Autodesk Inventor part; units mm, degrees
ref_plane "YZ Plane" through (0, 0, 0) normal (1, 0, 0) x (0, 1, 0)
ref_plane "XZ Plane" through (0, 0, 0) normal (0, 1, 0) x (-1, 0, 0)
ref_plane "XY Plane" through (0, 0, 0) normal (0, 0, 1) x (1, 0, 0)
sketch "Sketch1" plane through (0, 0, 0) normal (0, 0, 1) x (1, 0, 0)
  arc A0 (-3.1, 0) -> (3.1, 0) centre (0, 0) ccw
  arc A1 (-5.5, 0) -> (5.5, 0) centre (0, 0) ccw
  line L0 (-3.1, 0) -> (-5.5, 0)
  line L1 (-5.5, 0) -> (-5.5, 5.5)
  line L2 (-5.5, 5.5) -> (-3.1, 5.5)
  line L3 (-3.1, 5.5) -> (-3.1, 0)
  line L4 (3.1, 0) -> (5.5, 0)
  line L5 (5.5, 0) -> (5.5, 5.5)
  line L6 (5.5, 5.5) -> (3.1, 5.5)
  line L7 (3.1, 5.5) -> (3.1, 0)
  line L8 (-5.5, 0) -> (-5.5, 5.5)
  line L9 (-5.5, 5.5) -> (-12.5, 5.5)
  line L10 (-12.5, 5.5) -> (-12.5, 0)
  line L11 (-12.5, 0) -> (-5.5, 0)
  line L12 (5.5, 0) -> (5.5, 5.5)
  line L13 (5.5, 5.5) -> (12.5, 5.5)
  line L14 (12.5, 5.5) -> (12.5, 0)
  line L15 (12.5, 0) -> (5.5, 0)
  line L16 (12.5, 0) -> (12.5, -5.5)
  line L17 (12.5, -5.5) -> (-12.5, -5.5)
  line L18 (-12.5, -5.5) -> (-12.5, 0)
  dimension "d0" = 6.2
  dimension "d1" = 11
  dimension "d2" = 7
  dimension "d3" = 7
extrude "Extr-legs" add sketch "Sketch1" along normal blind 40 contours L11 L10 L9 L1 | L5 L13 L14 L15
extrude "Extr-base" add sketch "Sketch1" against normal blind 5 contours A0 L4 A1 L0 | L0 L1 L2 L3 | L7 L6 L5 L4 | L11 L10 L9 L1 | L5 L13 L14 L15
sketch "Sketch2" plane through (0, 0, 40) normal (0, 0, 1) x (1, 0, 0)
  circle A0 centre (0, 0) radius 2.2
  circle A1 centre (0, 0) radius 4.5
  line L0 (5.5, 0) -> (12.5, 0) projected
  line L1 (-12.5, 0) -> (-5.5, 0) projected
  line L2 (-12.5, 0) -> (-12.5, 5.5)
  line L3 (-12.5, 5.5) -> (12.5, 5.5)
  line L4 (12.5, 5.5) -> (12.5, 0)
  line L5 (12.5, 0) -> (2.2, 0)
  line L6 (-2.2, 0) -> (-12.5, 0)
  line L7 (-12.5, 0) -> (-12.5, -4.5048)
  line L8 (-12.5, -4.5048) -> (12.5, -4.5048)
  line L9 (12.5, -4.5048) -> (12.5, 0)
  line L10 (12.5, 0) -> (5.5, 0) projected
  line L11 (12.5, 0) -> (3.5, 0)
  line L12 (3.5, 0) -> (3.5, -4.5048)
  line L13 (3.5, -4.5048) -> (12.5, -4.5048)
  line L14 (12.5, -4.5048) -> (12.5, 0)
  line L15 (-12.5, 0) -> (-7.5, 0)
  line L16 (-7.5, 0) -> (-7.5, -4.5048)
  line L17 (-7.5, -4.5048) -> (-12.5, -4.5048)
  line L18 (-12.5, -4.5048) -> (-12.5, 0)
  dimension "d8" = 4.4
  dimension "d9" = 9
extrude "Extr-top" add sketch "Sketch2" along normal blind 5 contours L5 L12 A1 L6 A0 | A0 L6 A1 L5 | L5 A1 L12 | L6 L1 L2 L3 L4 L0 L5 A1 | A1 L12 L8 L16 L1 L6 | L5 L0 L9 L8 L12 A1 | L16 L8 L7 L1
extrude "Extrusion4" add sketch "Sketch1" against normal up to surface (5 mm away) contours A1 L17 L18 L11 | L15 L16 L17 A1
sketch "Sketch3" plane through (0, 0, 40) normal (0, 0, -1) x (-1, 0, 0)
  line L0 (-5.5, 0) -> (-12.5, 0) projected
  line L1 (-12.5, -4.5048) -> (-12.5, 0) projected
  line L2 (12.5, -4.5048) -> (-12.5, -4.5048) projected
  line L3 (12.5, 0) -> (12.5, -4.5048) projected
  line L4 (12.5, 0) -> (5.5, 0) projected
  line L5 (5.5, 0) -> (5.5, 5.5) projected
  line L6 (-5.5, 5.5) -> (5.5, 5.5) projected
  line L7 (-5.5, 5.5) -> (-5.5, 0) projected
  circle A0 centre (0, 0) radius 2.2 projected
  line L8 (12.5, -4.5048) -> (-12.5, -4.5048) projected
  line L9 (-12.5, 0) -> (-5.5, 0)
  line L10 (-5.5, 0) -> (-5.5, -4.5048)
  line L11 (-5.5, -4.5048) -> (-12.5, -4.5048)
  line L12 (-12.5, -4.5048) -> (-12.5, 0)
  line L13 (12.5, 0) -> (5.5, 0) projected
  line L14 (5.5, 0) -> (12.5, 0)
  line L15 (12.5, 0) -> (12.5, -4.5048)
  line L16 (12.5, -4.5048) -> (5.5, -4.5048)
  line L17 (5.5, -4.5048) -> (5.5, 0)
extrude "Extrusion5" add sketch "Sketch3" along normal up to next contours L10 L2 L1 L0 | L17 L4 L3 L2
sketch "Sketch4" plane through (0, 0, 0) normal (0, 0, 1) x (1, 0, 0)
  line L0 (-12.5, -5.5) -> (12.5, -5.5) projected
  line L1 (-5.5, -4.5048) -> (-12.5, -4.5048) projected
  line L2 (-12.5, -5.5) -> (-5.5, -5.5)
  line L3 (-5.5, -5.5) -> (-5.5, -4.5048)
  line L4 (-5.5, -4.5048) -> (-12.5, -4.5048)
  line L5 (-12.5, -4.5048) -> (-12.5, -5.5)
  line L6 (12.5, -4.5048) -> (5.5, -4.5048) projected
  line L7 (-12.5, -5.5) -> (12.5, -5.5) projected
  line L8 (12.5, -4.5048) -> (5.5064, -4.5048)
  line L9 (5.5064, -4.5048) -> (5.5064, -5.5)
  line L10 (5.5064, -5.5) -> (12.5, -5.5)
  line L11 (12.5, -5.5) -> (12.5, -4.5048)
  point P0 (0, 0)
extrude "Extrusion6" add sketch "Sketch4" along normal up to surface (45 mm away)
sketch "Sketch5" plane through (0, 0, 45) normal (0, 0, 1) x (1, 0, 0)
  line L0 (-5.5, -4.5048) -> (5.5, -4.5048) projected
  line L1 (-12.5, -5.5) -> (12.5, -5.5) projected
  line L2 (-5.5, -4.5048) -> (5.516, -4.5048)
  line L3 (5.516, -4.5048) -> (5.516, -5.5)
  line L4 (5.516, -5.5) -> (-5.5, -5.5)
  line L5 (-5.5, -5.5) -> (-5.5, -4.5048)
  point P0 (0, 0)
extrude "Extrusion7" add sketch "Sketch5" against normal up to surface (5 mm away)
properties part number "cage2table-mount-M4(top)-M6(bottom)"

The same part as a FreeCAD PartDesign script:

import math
import FreeCAD as App
import Part
import Sketcher

V = App.Vector

doc = App.newDocument("Part")
params = doc.addObject("Spreadsheet::Sheet", "Params")
for row, (alias, value) in enumerate([
    ("sketch1_width", "7 mm"),
    ("sketch1_height", "5.5 mm"),
    ("pad1_length", "40 mm"),
    ("sketch2_radius", "3.1 mm"),
    ("sketch2_radius2", "5.5 mm"),
    ("sketch2_width", "7 mm"),
    ("sketch2_height", "5.5 mm"),
    ("pad2_length", "5 mm"),
    ("sketch3_diameter", "4.4 mm"),
    ("sketch3_width", "25 mm"),
    ("pad3_length", "5 mm"),
    ("sketch4_radius", "5.5 mm"),
    ("sketch4_width", "7 mm"),
    ("pad4_length", "5 mm"),
    ("sketch5_width", "7 mm"),
    ("pad5_length", "40 mm"),
    ("sketch6_width", "7 mm"),
    ("pad6_length", "45 mm"),
    ("pad7_length", "5 mm"),
], start=1):
    params.set(f"A{row}", alias)
    params.set(f"B{row}", "=" + value)
    params.setAlias(f"B{row}", alias)

body = doc.addObject("PartDesign::Body", "Body")
body.AllowCompound = True

# Sketch on XY plane
sketch1 = body.newObject("Sketcher::SketchObject", "Sketch")
sketch1.AttachmentSupport = (doc.getObject("XY_Plane"), [""])
sketch1.MapMode = "FlatFace"
sketch1.addGeometry([
    Part.LineSegment(V(-12, 0, 0), V(-6, 0, 0)),  # 0
    Part.LineSegment(V(-6, 0, 0), V(-6, 6, 0)),  # 1
    Part.LineSegment(V(-6, 6, 0), V(-12, 6, 0)),  # 2
    Part.LineSegment(V(-12, 6, 0), V(-12, 0, 0)),  # 3
    Part.LineSegment(V(6, 6, 0), V(6, 0, 0)),  # 4
    Part.LineSegment(V(6, 0, 0), V(12, 0, 0)),  # 5
    Part.LineSegment(V(12, 0, 0), V(12, 6, 0)),  # 6
    Part.LineSegment(V(12, 6, 0), V(6, 6, 0)),  # 7
], False)
sketch1.addConstraint([
    Sketcher.Constraint("Coincident", 0, 2, 1, 1),
    Sketcher.Constraint("Coincident", 1, 2, 2, 1),
    Sketcher.Constraint("Coincident", 2, 2, 3, 1),
    Sketcher.Constraint("Coincident", 3, 2, 0, 1),
    Sketcher.Constraint("Coincident", 4, 2, 5, 1),
    Sketcher.Constraint("Coincident", 5, 2, 6, 1),
    Sketcher.Constraint("Coincident", 6, 2, 7, 1),
    Sketcher.Constraint("Coincident", 7, 2, 4, 1),
    Sketcher.Constraint("Horizontal", 0),
    Sketcher.Constraint("Vertical", 1),
    Sketcher.Constraint("Horizontal", 2),
    Sketcher.Constraint("Vertical", 3),
    Sketcher.Constraint("Vertical", 4),
    Sketcher.Constraint("Horizontal", 5),
    Sketcher.Constraint("Vertical", 6),
    Sketcher.Constraint("Horizontal", 7),
    Sketcher.Constraint("Symmetric", 0, 2, 4, 2, -1, 1),
    Sketcher.Constraint("Symmetric", 3, 2, 5, 2, -2),
    Sketcher.Constraint("Horizontal", 2, 2, 6, 2),
    Sketcher.Constraint("DistanceX", 0, 1, 0, 2, 7.0),
    Sketcher.Constraint("DistanceX", 0, 2, 4, 2, 11.0),
    Sketcher.Constraint("DistanceY", 1, 1, 1, 2, 5.5),
])
sketch1.setExpression("Constraints[19]", "Params.sketch1_width")
sketch1.setExpression("Constraints[21]", "Params.sketch1_height")
pad1 = body.newObject("PartDesign::Pad", "Pad")
pad1.Profile = sketch1
pad1.setExpression("Length", "Params.pad1_length")

# Sketch on XY plane
sketch2 = body.newObject("Sketcher::SketchObject", "Sketch001")
sketch2.AttachmentSupport = (doc.getObject("XY_Plane"), [""])
sketch2.MapMode = "FlatFace"
sketch2.addGeometry([
    Part.ArcOfCircle(Part.Circle(V(0, 0, 0), V(0, 0, 1), 3.1), math.radians(180), math.radians(360)),  # 0
    Part.LineSegment(V(-3.1, 0, 0), V(-3.1, 5.5, 0)),  # 1
    Part.LineSegment(V(-3.1, 5.5, 0), V(-12.5, 5.5, 0)),  # 2
    Part.LineSegment(V(-12.5, 5.5, 0), V(-12.5, 0, 0)),  # 3
    Part.LineSegment(V(-12.5, 0, 0), V(-5.5, 0, 0)),  # 4
    Part.ArcOfCircle(Part.Circle(V(0, 0, 0), V(0, 0, 1), 5.5), math.radians(180), math.radians(360)),  # 5
    Part.LineSegment(V(5.5, 0, 0), V(12.5, 0, 0)),  # 6
    Part.LineSegment(V(12.5, 0, 0), V(12.5, 5.5, 0)),  # 7
    Part.LineSegment(V(12.5, 5.5, 0), V(3.1, 5.5, 0)),  # 8
    Part.LineSegment(V(3.1, 5.5, 0), V(3.1, 0, 0)),  # 9
], False)
sketch2.addConstraint([
    Sketcher.Constraint("Tangent", 0, 1, 1, 1),
    Sketcher.Constraint("Coincident", 1, 2, 2, 1),
    Sketcher.Constraint("Coincident", 2, 2, 3, 1),
    Sketcher.Constraint("Coincident", 3, 2, 4, 1),
    Sketcher.Constraint("Coincident", 4, 2, 5, 1),
    Sketcher.Constraint("Coincident", 5, 2, 6, 1),
    Sketcher.Constraint("Coincident", 6, 2, 7, 1),
    Sketcher.Constraint("Coincident", 7, 2, 8, 1),
    Sketcher.Constraint("Coincident", 8, 2, 9, 1),
    Sketcher.Constraint("Tangent", 9, 2, 0, 2),
    Sketcher.Constraint("Vertical", 1),
    Sketcher.Constraint("Horizontal", 2),
    Sketcher.Constraint("Vertical", 3),
    Sketcher.Constraint("Horizontal", 4),
    Sketcher.Constraint("Horizontal", 6),
    Sketcher.Constraint("Vertical", 7),
    Sketcher.Constraint("Horizontal", 8),
    Sketcher.Constraint("Vertical", 9),
    Sketcher.Constraint("Coincident", 0, 3, -1, 1),
    Sketcher.Constraint("Coincident", 5, 3, -1, 1),
    Sketcher.Constraint("Symmetric", 3, 2, 6, 2, -1, 1),
    Sketcher.Constraint("PointOnObject", 3, 2, -1),
    Sketcher.Constraint("Horizontal", 2, 2, 7, 2),
    Sketcher.Constraint("Radius", 0, 3.1),
    Sketcher.Constraint("Radius", 5, 5.5),
    Sketcher.Constraint("DistanceX", 4, 1, 4, 2, 7.0),
    Sketcher.Constraint("DistanceY", 1, 1, 1, 2, 5.5),
])
sketch2.setExpression("Constraints[23]", "Params.sketch2_radius")
sketch2.setExpression("Constraints[24]", "Params.sketch2_radius2")
sketch2.setExpression("Constraints[25]", "Params.sketch2_width")
sketch2.setExpression("Constraints[26]", "Params.sketch2_height")
pad2 = body.newObject("PartDesign::Pad", "Pad001")
pad2.Profile = sketch2
pad2.setExpression("Length", "Params.pad2_length")
pad2.Reversed = True

# Sketch on XY plane
sketch3 = body.newObject("Sketcher::SketchObject", "Sketch002")
sketch3.AttachmentSupport = (doc.getObject("XY_Plane"), [""])
sketch3.MapMode = "FlatFace"
sketch3.AttachmentOffset = App.Placement(V(0, 0, 40), App.Rotation())
sketch3.addGeometry([
    Part.LineSegment(V(12.5, -4.5, 0), V(12.5, 5.5, 0)),  # 0
    Part.LineSegment(V(12.5, 5.5, 0), V(-12.5, 5.5, 0)),  # 1
    Part.LineSegment(V(-12.5, 5.5, 0), V(-12.5, -4.5, 0)),  # 2
    Part.LineSegment(V(-12.5, -4.5, 0), V(12.5, -4.5, 0)),  # 3
    Part.Circle(V(0, 0, 0), V(0, 0, 1), 2.2),  # 4
], False)
sketch3.addConstraint([
    Sketcher.Constraint("Coincident", 0, 2, 1, 1),
    Sketcher.Constraint("Coincident", 1, 2, 2, 1),
    Sketcher.Constraint("Coincident", 2, 2, 3, 1),
    Sketcher.Constraint("Coincident", 3, 2, 0, 1),
    Sketcher.Constraint("Vertical", 0),
    Sketcher.Constraint("Horizontal", 1),
    Sketcher.Constraint("Vertical", 2),
    Sketcher.Constraint("Horizontal", 3),
    Sketcher.Constraint("Coincident", 4, 3, -1, 1),
    Sketcher.Constraint("Diameter", 4, 4.4),
    Sketcher.Constraint("DistanceX", 1, 2, 1, 1, 25.0),
    Sketcher.Constraint("DistanceX", -1, 1, 0, 2, 12.5),
    Sketcher.Constraint("DistanceY", -1, 1, 0, 2, 5.5),
    Sketcher.Constraint("DistanceY", 0, 1, 0, 2, 10.0048),
])
sketch3.setExpression("Constraints[9]", "Params.sketch3_diameter")
sketch3.setExpression("Constraints[10]", "Params.sketch3_width")
pad3 = body.newObject("PartDesign::Pad", "Pad002")
pad3.Profile = sketch3
pad3.setExpression("Length", "Params.pad3_length")

# Sketch on XY plane
sketch4 = body.newObject("Sketcher::SketchObject", "Sketch003")
sketch4.AttachmentSupport = (doc.getObject("XY_Plane"), [""])
sketch4.MapMode = "FlatFace"
sketch4.addGeometry([
    Part.ArcOfCircle(Part.Circle(V(0, 0, 0), V(0, 0, 1), 6), math.radians(180), math.radians(270)),  # 0
    Part.LineSegment(V(-6, 0, 0), V(-12, 0, 0)),  # 1
    Part.LineSegment(V(-12, 0, 0), V(-12, -6, 0)),  # 2
    Part.LineSegment(V(-12, -6, 0), V(0, -6, 0)),  # 3
    Part.LineSegment(V(12, 0, 0), V(6, 0, 0)),  # 4
    Part.ArcOfCircle(Part.Circle(V(0, 0, 0), V(0, 0, 1), 6), math.radians(-90), math.radians(0)),  # 5
    Part.LineSegment(V(0, -6, 0), V(12, -6, 0)),  # 6
    Part.LineSegment(V(12, -6, 0), V(12, 0, 0)),  # 7
], False)
sketch4.addConstraint([
    Sketcher.Constraint("Coincident", 0, 1, 1, 1),
    Sketcher.Constraint("Coincident", 1, 2, 2, 1),
    Sketcher.Constraint("Coincident", 2, 2, 3, 1),
    Sketcher.Constraint("Tangent", 3, 2, 0, 2),
    Sketcher.Constraint("Coincident", 4, 2, 5, 2),
    Sketcher.Constraint("Tangent", 5, 1, 6, 1),
    Sketcher.Constraint("Coincident", 6, 2, 7, 1),
    Sketcher.Constraint("Coincident", 7, 2, 4, 1),
    Sketcher.Constraint("Horizontal", 1),
    Sketcher.Constraint("Vertical", 2),
    Sketcher.Constraint("Horizontal", 3),
    Sketcher.Constraint("Horizontal", 4),
    Sketcher.Constraint("Horizontal", 6),
    Sketcher.Constraint("Vertical", 7),
    Sketcher.Constraint("Coincident", 0, 3, -1, 1),
    Sketcher.Constraint("Coincident", 5, 3, -1, 1),
    Sketcher.Constraint("Equal", 0, 5),
    Sketcher.Constraint("Symmetric", 1, 2, 7, 2, -1, 1),
    Sketcher.Constraint("PointOnObject", 0, 1, -1),
    Sketcher.Constraint("Radius", 0, 5.5),
    Sketcher.Constraint("DistanceX", 1, 2, 1, 1, 7.0),
])
sketch4.setExpression("Constraints[19]", "Params.sketch4_radius")
sketch4.setExpression("Constraints[20]", "Params.sketch4_width")
pad4 = body.newObject("PartDesign::Pad", "Pad003")
pad4.Profile = sketch4
pad4.setExpression("Length", "Params.pad4_length")
pad4.Reversed = True

# Sketch on XY plane
sketch5 = body.newObject("Sketcher::SketchObject", "Sketch004")
sketch5.AttachmentSupport = (doc.getObject("XY_Plane"), [""])
sketch5.MapMode = "FlatFace"
sketch5.AttachmentOffset = App.Placement(V(0, 0, 40), App.Rotation())
sketch5.addGeometry([
    Part.LineSegment(V(5.5, -4.5, 0), V(5.5, 0, 0)),  # 0
    Part.LineSegment(V(5.5, 0, 0), V(12.5, 0, 0)),  # 1
    Part.LineSegment(V(12.5, 0, 0), V(12.5, -4.5, 0)),  # 2
    Part.LineSegment(V(12.5, -4.5, 0), V(5.5, -4.5, 0)),  # 3
    Part.LineSegment(V(-5.5, 0, 0), V(-5.5, -4.5, 0)),  # 4
    Part.LineSegment(V(-5.5, -4.5, 0), V(-12.5, -4.5, 0)),  # 5
    Part.LineSegment(V(-12.5, -4.5, 0), V(-12.5, 0, 0)),  # 6
    Part.LineSegment(V(-12.5, 0, 0), V(-5.5, 0, 0)),  # 7
], False)
sketch5.addConstraint([
    Sketcher.Constraint("Coincident", 0, 2, 1, 1),
    Sketcher.Constraint("Coincident", 1, 2, 2, 1),
    Sketcher.Constraint("Coincident", 2, 2, 3, 1),
    Sketcher.Constraint("Coincident", 3, 2, 0, 1),
    Sketcher.Constraint("Coincident", 4, 2, 5, 1),
    Sketcher.Constraint("Coincident", 5, 2, 6, 1),
    Sketcher.Constraint("Coincident", 6, 2, 7, 1),
    Sketcher.Constraint("Coincident", 7, 2, 4, 1),
    Sketcher.Constraint("Vertical", 0),
    Sketcher.Constraint("Horizontal", 1),
    Sketcher.Constraint("Vertical", 2),
    Sketcher.Constraint("Horizontal", 3),
    Sketcher.Constraint("Vertical", 4),
    Sketcher.Constraint("Horizontal", 5),
    Sketcher.Constraint("Vertical", 6),
    Sketcher.Constraint("Horizontal", 7),
    Sketcher.Constraint("Symmetric", 1, 2, 6, 2, -1, 1),
    Sketcher.Constraint("Symmetric", 3, 2, 4, 2, -2),
    Sketcher.Constraint("PointOnObject", 0, 2, -1),
    Sketcher.Constraint("DistanceX", 1, 1, 1, 2, 7.0),
    Sketcher.Constraint("DistanceX", 4, 2, 3, 2, 11.0),
    Sketcher.Constraint("DistanceY", 0, 1, 0, 2, 4.5048),
])
sketch5.setExpression("Constraints[19]", "Params.sketch5_width")
pad5 = body.newObject("PartDesign::Pad", "Pad004")
pad5.Profile = sketch5
pad5.setExpression("Length", "Params.pad5_length")
pad5.Reversed = True

# Sketch on XY plane
sketch6 = body.newObject("Sketcher::SketchObject", "Sketch005")
sketch6.AttachmentSupport = (doc.getObject("XY_Plane"), [""])
sketch6.MapMode = "FlatFace"
sketch6.addGeometry([
    Part.LineSegment(V(-12.5, -4.5, 0), V(-12.5, -5.5, 0)),  # 0
    Part.LineSegment(V(-12.5, -5.5, 0), V(-5.5, -5.5, 0)),  # 1
    Part.LineSegment(V(-5.5, -5.5, 0), V(-5.5, -4.5, 0)),  # 2
    Part.LineSegment(V(-5.5, -4.5, 0), V(-12.5, -4.5, 0)),  # 3
    Part.LineSegment(V(5.5, -4.5, 0), V(5.5, -5.5, 0)),  # 4
    Part.LineSegment(V(5.5, -5.5, 0), V(12.5, -5.5, 0)),  # 5
    Part.LineSegment(V(12.5, -5.5, 0), V(12.5, -4.5, 0)),  # 6
    Part.LineSegment(V(12.5, -4.5, 0), V(5.5, -4.5, 0)),  # 7
], False)
sketch6.addConstraint([
    Sketcher.Constraint("Coincident", 0, 2, 1, 1),
    Sketcher.Constraint("Coincident", 1, 2, 2, 1),
    Sketcher.Constraint("Coincident", 2, 2, 3, 1),
    Sketcher.Constraint("Coincident", 3, 2, 0, 1),
    Sketcher.Constraint("Coincident", 4, 2, 5, 1),
    Sketcher.Constraint("Coincident", 5, 2, 6, 1),
    Sketcher.Constraint("Coincident", 6, 2, 7, 1),
    Sketcher.Constraint("Coincident", 7, 2, 4, 1),
    Sketcher.Constraint("Vertical", 0),
    Sketcher.Constraint("Horizontal", 1),
    Sketcher.Constraint("Vertical", 2),
    Sketcher.Constraint("Horizontal", 3),
    Sketcher.Constraint("Vertical", 4),
    Sketcher.Constraint("Horizontal", 5),
    Sketcher.Constraint("Vertical", 6),
    Sketcher.Constraint("Horizontal", 7),
    Sketcher.Constraint("Symmetric", 0, 2, 5, 2, -2),
    Sketcher.Constraint("Horizontal", 3, 2, 6, 2),
    Sketcher.Constraint("DistanceX", 1, 1, 1, 2, 7.0),
    Sketcher.Constraint("DistanceX", 1, 2, 5, 2, 18.0),
    Sketcher.Constraint("DistanceY", 0, 2, -1, 1, 5.5),
    Sketcher.Constraint("DistanceX", 5, 1, 5, 2, 6.9936),
    Sketcher.Constraint("DistanceY", 0, 2, 0, 1, 0.9952),
])
sketch6.setExpression("Constraints[18]", "Params.sketch6_width")
pad6 = body.newObject("PartDesign::Pad", "Pad005")
pad6.Profile = sketch6
pad6.setExpression("Length", "Params.pad6_length")

# Sketch on XY plane
sketch7 = body.newObject("Sketcher::SketchObject", "Sketch006")
sketch7.AttachmentSupport = (doc.getObject("XY_Plane"), [""])
sketch7.MapMode = "FlatFace"
sketch7.AttachmentOffset = App.Placement(V(0, 0, 45), App.Rotation())
sketch7.addGeometry([
    Part.LineSegment(V(5.5, -4.5, 0), V(-5.5, -4.5, 0)),
    Part.LineSegment(V(-5.5, -4.5, 0), V(-5.5, -5.5, 0)),
    Part.LineSegment(V(-5.5, -5.5, 0), V(5.5, -5.5, 0)),
    Part.LineSegment(V(5.5, -5.5, 0), V(5.5, -4.5, 0)),
], False)
sketch7.addConstraint([
    Sketcher.Constraint("Coincident", 0, 2, 1, 1),
    Sketcher.Constraint("Coincident", 1, 2, 2, 1),
    Sketcher.Constraint("Coincident", 2, 2, 3, 1),
    Sketcher.Constraint("Coincident", 3, 2, 0, 1),
    Sketcher.Constraint("Horizontal", 0),
    Sketcher.Constraint("Vertical", 1),
    Sketcher.Constraint("Horizontal", 2),
    Sketcher.Constraint("Vertical", 3),
    Sketcher.Constraint("DistanceX", 0, 2, -1, 1, 5.5),
    Sketcher.Constraint("DistanceY", 1, 2, -1, 1, 5.5),
    Sketcher.Constraint("DistanceX", 0, 2, 0, 1, 11.016),
    Sketcher.Constraint("DistanceY", 1, 2, 1, 1, 0.9952),
])
pad7 = body.newObject("PartDesign::Pad", "Pad006")
pad7.Profile = sketch7
pad7.setExpression("Length", "Params.pad7_length")
pad7.Reversed = True

doc.recompute()
